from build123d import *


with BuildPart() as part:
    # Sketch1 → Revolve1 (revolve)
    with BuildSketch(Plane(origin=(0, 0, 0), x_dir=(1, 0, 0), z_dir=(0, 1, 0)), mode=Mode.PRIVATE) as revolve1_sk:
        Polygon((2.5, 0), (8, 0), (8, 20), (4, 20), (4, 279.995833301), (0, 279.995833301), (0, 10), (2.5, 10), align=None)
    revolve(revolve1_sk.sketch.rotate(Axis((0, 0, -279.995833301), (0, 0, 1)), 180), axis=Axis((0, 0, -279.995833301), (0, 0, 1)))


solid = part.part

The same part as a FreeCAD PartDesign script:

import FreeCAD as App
import Part
import Sketcher
from FreeCAD import Vector

doc = App.newDocument("Part")
body = doc.addObject("PartDesign::Body", "Body")

sketch1 = doc.addObject("Sketcher::SketchObject", "Sketch")
body.addObject(sketch1)
sketch1.AttachmentSupport = (doc.XZ_Plane, [""])
sketch1.MapMode = "FlatFace"
sketch1.addGeometry([
    Part.LineSegment(Vector(2.5, 0, 0), Vector(8, 0, 0)),
    Part.LineSegment(Vector(8, 0, 0), Vector(8, -20, 0)),
    Part.LineSegment(Vector(8, -20, 0), Vector(4, -20, 0)),
    Part.LineSegment(Vector(4, -20, 0), Vector(4, -280, 0)),
    Part.LineSegment(Vector(4, -280, 0), Vector(0, -280, 0)),
    Part.LineSegment(Vector(0, -280, 0), Vector(0, -10, 0)),
    Part.LineSegment(Vector(0, -10, 0), Vector(2.5, -10, 0)),
    Part.LineSegment(Vector(2.5, -10, 0), Vector(2.5, 0, 0)),
], False)
sketch1.addConstraint([
    Sketcher.Constraint("Coincident", 0, 2, 1, 1),
    Sketcher.Constraint("Coincident", 1, 2, 2, 1),
    Sketcher.Constraint("Coincident", 2, 2, 3, 1),
    Sketcher.Constraint("Coincident", 3, 2, 4, 1),
    Sketcher.Constraint("Coincident", 4, 2, 5, 1),
    Sketcher.Constraint("Coincident", 5, 2, 6, 1),
    Sketcher.Constraint("Coincident", 6, 2, 7, 1),
    Sketcher.Constraint("Coincident", 7, 2, 0, 1),
    Sketcher.Constraint("Horizontal", 0),
    Sketcher.Constraint("Vertical", 1),
    Sketcher.Constraint("Horizontal", 2),
    Sketcher.Constraint("Vertical", 3),
    Sketcher.Constraint("Horizontal", 4),
    Sketcher.Constraint("Vertical", 5),
    Sketcher.Constraint("Horizontal", 6),
    Sketcher.Constraint("Vertical", 7),
    Sketcher.Constraint("PointOnObject", 0, 2, -1),
    Sketcher.Constraint("PointOnObject", 4, 2, -2),
    Sketcher.Constraint("Equal", 2, 4),
    Sketcher.Constraint("DistanceX", 2, 2, 2, 1, 4.0),
    Sketcher.Constraint("DistanceY", 1, 2, 1, 1, 20.0),
    Sketcher.Constraint("DistanceY", 7, 1, 7, 2, 10.0),
    Sketcher.Constraint("DistanceX", 0, 1, 0, 2, 5.5),
    Sketcher.Constraint("DistanceY", 3, 2, 3, 1, 259.995833),
])
revolution = doc.addObject("PartDesign::Revolution", "Revolution")
body.addObject(revolution)
revolution.Profile = sketch1
revolution.ReferenceAxis = (sketch1, ["V_Axis"])
revolution.Angle = 360

doc.recompute()
